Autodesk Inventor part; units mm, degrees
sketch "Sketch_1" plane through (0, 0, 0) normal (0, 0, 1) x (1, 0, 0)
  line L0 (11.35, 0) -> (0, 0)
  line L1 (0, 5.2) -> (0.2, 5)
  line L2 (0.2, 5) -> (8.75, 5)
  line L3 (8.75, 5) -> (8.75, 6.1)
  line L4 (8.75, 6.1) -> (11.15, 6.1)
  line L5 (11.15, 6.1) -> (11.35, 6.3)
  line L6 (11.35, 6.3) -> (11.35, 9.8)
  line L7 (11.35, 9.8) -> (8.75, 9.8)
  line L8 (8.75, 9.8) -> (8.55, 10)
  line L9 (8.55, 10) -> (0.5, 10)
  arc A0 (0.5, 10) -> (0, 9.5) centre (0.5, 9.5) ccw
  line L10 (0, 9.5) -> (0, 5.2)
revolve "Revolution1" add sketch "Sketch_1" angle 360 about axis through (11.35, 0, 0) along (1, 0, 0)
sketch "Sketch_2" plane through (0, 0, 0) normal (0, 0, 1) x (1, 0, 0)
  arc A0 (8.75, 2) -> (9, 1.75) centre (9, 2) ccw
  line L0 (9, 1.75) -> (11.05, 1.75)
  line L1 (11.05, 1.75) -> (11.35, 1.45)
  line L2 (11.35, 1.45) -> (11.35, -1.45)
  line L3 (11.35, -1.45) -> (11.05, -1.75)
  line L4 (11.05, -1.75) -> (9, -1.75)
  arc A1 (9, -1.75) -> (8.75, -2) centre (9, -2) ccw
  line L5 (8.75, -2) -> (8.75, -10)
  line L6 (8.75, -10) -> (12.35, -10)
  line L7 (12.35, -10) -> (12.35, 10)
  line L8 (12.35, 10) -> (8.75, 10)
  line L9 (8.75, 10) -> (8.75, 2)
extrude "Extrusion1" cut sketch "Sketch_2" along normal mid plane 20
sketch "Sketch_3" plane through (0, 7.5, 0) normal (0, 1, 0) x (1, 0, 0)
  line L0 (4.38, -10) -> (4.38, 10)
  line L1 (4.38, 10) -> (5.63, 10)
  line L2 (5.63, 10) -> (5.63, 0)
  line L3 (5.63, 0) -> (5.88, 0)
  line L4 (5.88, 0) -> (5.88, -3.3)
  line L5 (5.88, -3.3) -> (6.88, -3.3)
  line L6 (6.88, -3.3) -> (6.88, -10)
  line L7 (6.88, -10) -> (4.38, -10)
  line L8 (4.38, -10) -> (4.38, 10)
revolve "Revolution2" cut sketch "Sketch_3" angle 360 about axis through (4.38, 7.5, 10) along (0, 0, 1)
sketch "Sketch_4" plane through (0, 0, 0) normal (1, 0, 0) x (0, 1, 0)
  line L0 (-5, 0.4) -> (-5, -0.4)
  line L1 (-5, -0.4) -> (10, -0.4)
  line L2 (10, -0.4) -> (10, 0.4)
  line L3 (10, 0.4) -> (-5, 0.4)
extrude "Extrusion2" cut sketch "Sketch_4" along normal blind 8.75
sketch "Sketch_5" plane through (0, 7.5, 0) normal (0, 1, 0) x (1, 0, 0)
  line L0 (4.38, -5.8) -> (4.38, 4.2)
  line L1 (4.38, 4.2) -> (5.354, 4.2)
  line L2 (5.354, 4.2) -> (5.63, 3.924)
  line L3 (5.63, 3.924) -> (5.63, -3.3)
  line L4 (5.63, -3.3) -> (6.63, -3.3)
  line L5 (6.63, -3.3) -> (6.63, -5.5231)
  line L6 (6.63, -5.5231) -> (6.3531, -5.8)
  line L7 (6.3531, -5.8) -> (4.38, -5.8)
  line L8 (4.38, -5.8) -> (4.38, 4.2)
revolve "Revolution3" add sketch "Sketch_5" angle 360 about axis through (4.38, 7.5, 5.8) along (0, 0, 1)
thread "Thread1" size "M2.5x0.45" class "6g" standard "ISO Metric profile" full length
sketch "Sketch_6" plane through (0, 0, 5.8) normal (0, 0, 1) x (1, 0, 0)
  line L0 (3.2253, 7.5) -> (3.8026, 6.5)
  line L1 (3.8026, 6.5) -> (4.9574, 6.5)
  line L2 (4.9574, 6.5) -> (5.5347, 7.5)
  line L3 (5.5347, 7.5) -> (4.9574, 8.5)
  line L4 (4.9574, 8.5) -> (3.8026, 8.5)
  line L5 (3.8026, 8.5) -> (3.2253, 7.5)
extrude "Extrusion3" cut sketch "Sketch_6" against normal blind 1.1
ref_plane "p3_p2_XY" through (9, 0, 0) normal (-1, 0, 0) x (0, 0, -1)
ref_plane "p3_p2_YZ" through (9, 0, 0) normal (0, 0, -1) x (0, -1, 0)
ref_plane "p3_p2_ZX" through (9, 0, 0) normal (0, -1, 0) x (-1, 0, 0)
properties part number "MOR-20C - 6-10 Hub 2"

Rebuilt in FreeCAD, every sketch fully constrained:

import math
import FreeCAD as App
import Part
import Sketcher

V = App.Vector
Q = App.Units.Quantity

doc = App.newDocument("Part")
body = doc.addObject("PartDesign::Body", "Body")

# Sketch on XY plane
sketch1 = doc.addObject("Sketcher::SketchObject", "Sketch")
body.addObject(sketch1)
sketch1.AttachmentSupport = (doc.XY_Plane, [""])
sketch1.MapMode = "FlatFace"
sketch1.addGeometry([
    Part.LineSegment(V(0, 9.5, 0), V(0, 5.2, 0)),  # 0
    Part.LineSegment(V(0, 5.2, 0), V(0.2, 5, 0)),  # 1
    Part.LineSegment(V(0.2, 5, 0), V(8.75, 5, 0)),  # 2
    Part.LineSegment(V(8.75, 5, 0), V(8.75, 6.1, 0)),  # 3
    Part.LineSegment(V(8.75, 6.1, 0), V(11.15, 6.1, 0)),  # 4
    Part.LineSegment(V(11.15, 6.1, 0), V(11.35, 6.3, 0)),  # 5
    Part.LineSegment(V(11.35, 6.3, 0), V(11.35, 9.8, 0)),  # 6
    Part.LineSegment(V(11.35, 9.8, 0), V(8.75, 9.8, 0)),  # 7
    Part.LineSegment(V(8.75, 9.8, 0), V(8.55, 10, 0)),  # 8
    Part.LineSegment(V(8.55, 10, 0), V(0.5, 10, 0)),  # 9
    Part.ArcOfCircle(Part.Circle(V(0.5, 9.5, 0), V(0, 0, 1), 0.5), math.radians(90), math.radians(180)),  # 10
], False)
sketch1.addConstraint([
    Sketcher.Constraint("Coincident", 0, 2, 1, 1),
    Sketcher.Constraint("Coincident", 1, 2, 2, 1),
    Sketcher.Constraint("Coincident", 2, 2, 3, 1),
    Sketcher.Constraint("Coincident", 3, 2, 4, 1),
    Sketcher.Constraint("Coincident", 4, 2, 5, 1),
    Sketcher.Constraint("Coincident", 5, 2, 6, 1),
    Sketcher.Constraint("Coincident", 6, 2, 7, 1),
    Sketcher.Constraint("Coincident", 7, 2, 8, 1),
    Sketcher.Constraint("Coincident", 8, 2, 9, 1),
    Sketcher.Constraint("Tangent", 9, 2, 10, 1),
    Sketcher.Constraint("Tangent", 10, 2, 0, 1),
    Sketcher.Constraint("Vertical", 0),
    Sketcher.Constraint("Horizontal", 2),
    Sketcher.Constraint("Vertical", 3),
    Sketcher.Constraint("Horizontal", 4),
    Sketcher.Constraint("Vertical", 6),
    Sketcher.Constraint("Horizontal", 7),
    Sketcher.Constraint("Horizontal", 9),
    Sketcher.Constraint("PointOnObject", 0, 2, -2),
    Sketcher.Constraint("Perpendicular", 1, 5),
    Sketcher.Constraint("Perpendicular", 5, 8),
    Sketcher.Constraint("Vertical", 3, 2, 7, 2),
    Sketcher.Constraint("Equal", 1, 5),
    Sketcher.Constraint("Equal", 5, 8),
    Sketcher.Constraint("Radius", 10, 0.5),
    Sketcher.Constraint("Angle", 1, Q("-45 deg")),
    Sketcher.Constraint("DistanceX", 4, 1, 4, 2, 2.4),
    Sketcher.Constraint("DistanceX", 7, 2, 7, 1, 2.6),
    Sketcher.Constraint("DistanceY", 0, 2, 0, 1, 4.3),
    Sketcher.Constraint("DistanceY", 3, 1, 3, 2, 1.1),
    Sketcher.Constraint("DistanceY", -1, 1, 1, 2, 5.0),
    Sketcher.Constraint("DistanceX", 2, 1, 2, 2, 8.55),
])
revolution = doc.addObject("PartDesign::Revolution", "Revolution")
body.addObject(revolution)
revolution.Profile = sketch1
revolution.ReferenceAxis = (sketch1, ["H_Axis"])
revolution.Angle = 360

# Sketch on XY plane
sketch2 = doc.addObject("Sketcher::SketchObject", "Sketch001")
body.addObject(sketch2)
sketch2.AttachmentSupport = (doc.XY_Plane, [""])
sketch2.MapMode = "FlatFace"
sketch2.addGeometry([
    Part.LineSegment(V(8.75, 10, 0), V(8.75, 2, 0)),  # 0
    Part.ArcOfCircle(Part.Circle(V(9, 2, 0), V(0, 0, 1), 0.25), math.radians(180), math.radians(270)),  # 1
    Part.LineSegment(V(9, 1.75, 0), V(11.05, 1.75, 0)),  # 2
    Part.LineSegment(V(11.05, 1.75, 0), V(11.35, 1.45, 0)),  # 3
    Part.LineSegment(V(11.35, 1.45, 0), V(11.35, -1.45, 0)),  # 4
    Part.LineSegment(V(11.35, -1.45, 0), V(11.05, -1.75, 0)),  # 5
    Part.LineSegment(V(11.05, -1.75, 0), V(9, -1.75, 0)),  # 6
    Part.ArcOfCircle(Part.Circle(V(9, -2, 0), V(0, 0, 1), 0.25), math.radians(90), math.radians(180)),  # 7
    Part.LineSegment(V(8.75, -2, 0), V(8.75, -10, 0)),  # 8
    Part.LineSegment(V(8.75, -10, 0), V(12.35, -10, 0)),  # 9
    Part.LineSegment(V(12.35, -10, 0), V(12.35, 10, 0)),  # 10
    Part.LineSegment(V(12.35, 10, 0), V(8.75, 10, 0)),  # 11
], False)
sketch2.addConstraint([
    Sketcher.Constraint("Tangent", 0, 2, 1, 1),
    Sketcher.Constraint("Tangent", 1, 2, 2, 1),
    Sketcher.Constraint("Coincident", 2, 2, 3, 1),
    Sketcher.Constraint("Coincident", 3, 2, 4, 1),
    Sketcher.Constraint("Coincident", 4, 2, 5, 1),
    Sketcher.Constraint("Coincident", 5, 2, 6, 1),
    Sketcher.Constraint("Tangent", 6, 2, 7, 1),
    Sketcher.Constraint("Tangent", 7, 2, 8, 1),
    Sketcher.Constraint("Coincident", 8, 2, 9, 1),
    Sketcher.Constraint("Coincident", 9, 2, 10, 1),
    Sketcher.Constraint("Coincident", 10, 2, 11, 1),
    Sketcher.Constraint("Coincident", 11, 2, 0, 1),
    Sketcher.Constraint("Vertical", 0),
    Sketcher.Constraint("Horizontal", 2),
    Sketcher.Constraint("Vertical", 4),
    Sketcher.Constraint("Horizontal", 6),
    Sketcher.Constraint("Vertical", 8),
    Sketcher.Constraint("Horizontal", 9),
    Sketcher.Constraint("Vertical", 10),
    Sketcher.Constraint("Horizontal", 11),
    Sketcher.Constraint("Equal", 1, 7),
    Sketcher.Constraint("Symmetric", 1, 3, 7, 3, -1),
    Sketcher.Constraint("Perpendicular", 3, 5),
    Sketcher.Constraint("Vertical", 2, 2, 5, 2),
    Sketcher.Constraint("Equal", 0, 8),
    Sketcher.Constraint("Equal", 3, 5),
    Sketcher.Constraint("DistanceY", 0, 2, 0, 1, 8.0),
    Sketcher.Constraint("DistanceY", 10, 1, 10, 2, 20.0),
    Sketcher.Constraint("Radius", 1, 0.25),
    Sketcher.Constraint("DistanceX", 9, 1, 9, 2, 3.6),
    Sketcher.Constraint("DistanceY", 4, 2, 4, 1, 2.9),
    Sketcher.Constraint("DistanceX", -1, 1, 1, 3, 9.0),
    Sketcher.Constraint("DistanceX", 4, 2, 9, 2, 1.0),
])
pocket1 = doc.addObject("PartDesign::Pocket", "Pocket")
body.addObject(pocket1)
pocket1.Profile = sketch2
pocket1.Length = 20
pocket1.Midplane = True

# Sketch on XZ plane
sketch3 = doc.addObject("Sketcher::SketchObject", "Sketch002")
body.addObject(sketch3)
sketch3.AttachmentSupport = (doc.XZ_Plane, [""])
sketch3.MapMode = "FlatFace"
sketch3.AttachmentOffset = App.Placement(V(0, 0, -7.5), App.Rotation())
sketch3.addGeometry([
    Part.LineSegment(V(4.38, -10, 0), V(4.38, 10, 0)),  # 0
    Part.LineSegment(V(4.38, 10, 0), V(6.88, 10, 0)),  # 1
    Part.LineSegment(V(6.88, 10, 0), V(6.88, 3.3, 0)),  # 2
    Part.LineSegment(V(6.88, 3.3, 0), V(5.88, 3.3, 0)),  # 3
    Part.LineSegment(V(5.88, 3.3, 0), V(5.88, 0, 0)),  # 4
    Part.LineSegment(V(5.88, 0, 0), V(5.63, 0, 0)),  # 5
    Part.LineSegment(V(5.63, 0, 0), V(5.63, -10, 0)),  # 6
    Part.LineSegment(V(5.63, -10, 0), V(4.38, -10, 0)),  # 7
], False)
sketch3.addGeometry(Part.LineSegment(V(4.38, -10, 0), V(4.38, 10, 0)), True)  # axis
sketch3.addConstraint([
    Sketcher.Constraint("Coincident", 0, 2, 1, 1),
    Sketcher.Constraint("Coincident", 1, 2, 2, 1),
    Sketcher.Constraint("Coincident", 2, 2, 3, 1),
    Sketcher.Constraint("Coincident", 3, 2, 4, 1),
    Sketcher.Constraint("Coincident", 4, 2, 5, 1),
    Sketcher.Constraint("Coincident", 5, 2, 6, 1),
    Sketcher.Constraint("Coincident", 6, 2, 7, 1),
    Sketcher.Constraint("Coincident", 7, 2, 0, 1),
    Sketcher.Constraint("Vertical", 0),
    Sketcher.Constraint("Horizontal", 1),
    Sketcher.Constraint("Vertical", 2),
    Sketcher.Constraint("Horizontal", 3),
    Sketcher.Constraint("Vertical", 4),
    Sketcher.Constraint("Horizontal", 5),
    Sketcher.Constraint("Vertical", 6),
    Sketcher.Constraint("Horizontal", 7),
    Sketcher.Constraint("Vertical", 8),
    Sketcher.Constraint("Coincident", 8, 1, 7, 2),
    Sketcher.Constraint("PointOnObject", 4, 2, -1),
    Sketcher.Constraint("Horizontal", 1, 2, 8, 2),
    Sketcher.Constraint("DistanceX", 3, 2, 3, 1, 1.0),
    Sketcher.Constraint("DistanceY", 0, 1, 0, 2, 20.0),
    Sketcher.Constraint("DistanceY", 6, 2, 6, 1, 10.0),
    Sketcher.Constraint("DistanceX", 1, 1, 1, 2, 2.5),
    Sketcher.Constraint("DistanceY", 2, 2, 2, 1, 6.7),
    Sketcher.Constraint("DistanceX", 5, 2, 5, 1, 0.25),
    Sketcher.Constraint("DistanceX", -1, 1, 0, 2, 4.38),
])
groove = doc.addObject("PartDesign::Groove", "Groove")
body.addObject(groove)
groove.Profile = sketch3
groove.ReferenceAxis = (sketch3, ["Axis0"])
groove.Angle = 360

# Sketch on YZ plane
sketch4 = doc.addObject("Sketcher::SketchObject", "Sketch003")
body.addObject(sketch4)
sketch4.AttachmentSupport = (doc.YZ_Plane, [""])
sketch4.MapMode = "FlatFace"
sketch4.addGeometry([
    Part.LineSegment(V(10, 0.4, 0), V(-5, 0.4, 0)),
    Part.LineSegment(V(-5, 0.4, 0), V(-5, -0.4, 0)),
    Part.LineSegment(V(-5, -0.4, 0), V(10, -0.4, 0)),
    Part.LineSegment(V(10, -0.4, 0), V(10, 0.4, 0)),
], False)
sketch4.addConstraint([
    Sketcher.Constraint("Coincident", 0, 2, 1, 1),
    Sketcher.Constraint("Coincident", 1, 2, 2, 1),
    Sketcher.Constraint("Coincident", 2, 2, 3, 1),
    Sketcher.Constraint("Coincident", 3, 2, 0, 1),
    Sketcher.Constraint("Horizontal", 0),
    Sketcher.Constraint("Vertical", 1),
    Sketcher.Constraint("Horizontal", 2),
    Sketcher.Constraint("Vertical", 3),
    Sketcher.Constraint("DistanceX", 0, 2, 0, 1, 15.0),
    Sketcher.Constraint("DistanceY", 1, 2, 1, 1, 0.8),
    Sketcher.Constraint("DistanceX", 0, 2, -1, 1, 5.0),
    Sketcher.Constraint("DistanceY", -1, 1, 0, 2, 0.4),
])
pocket2 = doc.addObject("PartDesign::Pocket", "Pocket001")
body.addObject(pocket2)
pocket2.Profile = sketch4
pocket2.Length = 8.75
pocket2.Reversed = True

# Sketch on XZ plane
sketch5 = doc.addObject("Sketcher::SketchObject", "Sketch004")
body.addObject(sketch5)
sketch5.AttachmentSupport = (doc.XZ_Plane, [""])
sketch5.MapMode = "FlatFace"
sketch5.AttachmentOffset = App.Placement(V(0, 0, -7.5), App.Rotation())
sketch5.addGeometry([
    Part.LineSegment(V(4.38, -4.2, 0), V(4.38, 5.8, 0)),  # 0
    Part.LineSegment(V(4.38, 5.8, 0), V(6.35, 5.8, 0)),  # 1
    Part.LineSegment(V(6.35, 5.8, 0), V(6.63, 5.52, 0)),  # 2
    Part.LineSegment(V(6.63, 5.52, 0), V(6.63, 3.3, 0)),  # 3
    Part.LineSegment(V(6.63, 3.3, 0), V(5.63, 3.3, 0)),  # 4
    Part.LineSegment(V(5.63, 3.3, 0), V(5.63, -3.92, 0)),  # 5
    Part.LineSegment(V(5.63, -3.92, 0), V(5.35, -4.2, 0)),  # 6
    Part.LineSegment(V(5.35, -4.2, 0), V(4.38, -4.2, 0)),  # 7
], False)
sketch5.addGeometry(Part.LineSegment(V(4.38, -4.2, 0), V(4.38, 5.8, 0)), True)  # axis
sketch5.addConstraint([
    Sketcher.Constraint("Coincident", 0, 2, 1, 1),
    Sketcher.Constraint("Coincident", 1, 2, 2, 1),
    Sketcher.Constraint("Coincident", 2, 2, 3, 1),
    Sketcher.Constraint("Coincident", 3, 2, 4, 1),
    Sketcher.Constraint("Coincident", 4, 2, 5, 1),
    Sketcher.Constraint("Coincident", 5, 2, 6, 1),
    Sketcher.Constraint("Coincident", 6, 2, 7, 1),
    Sketcher.Constraint("Coincident", 7, 2, 0, 1),
    Sketcher.Constraint("Vertical", 0),
    Sketcher.Constraint("Horizontal", 1),
    Sketcher.Constraint("Vertical", 3),
    Sketcher.Constraint("Horizontal", 4),
    Sketcher.Constraint("Vertical", 5),
    Sketcher.Constraint("Horizontal", 7),
    Sketcher.Constraint("Vertical", 8),
    Sketcher.Constraint("Coincident", 8, 1, 7, 2),
    Sketcher.Constraint("Perpendicular", 2, 6),
    Sketcher.Constraint("Horizontal", 1, 2, 8, 2),
    Sketcher.Constraint("DistanceX", 4, 2, 4, 1, 1.0),
    Sketcher.Constraint("DistanceY", 0, 1, 0, 2, 10.0),
    Sketcher.Constraint("Angle", 2, Q("-45 deg")),
    Sketcher.Constraint("DistanceY", -1, 1, 0, 2, 5.8),
    Sketcher.Constraint("DistanceY", -1, 1, 3, 2, 3.3),
    Sketcher.Constraint("DistanceX", 1, 1, 1, 2, 1.973),
    Sketcher.Constraint("DistanceX", 7, 2, 7, 1, 0.974),
    Sketcher.Constraint("DistanceY", 3, 2, 3, 1, 2.223),
    Sketcher.Constraint("DistanceX", -1, 1, 0, 2, 4.38),
])
revolution2 = doc.addObject("PartDesign::Revolution", "Revolution001")
body.addObject(revolution2)
revolution2.Profile = sketch5
revolution2.ReferenceAxis = (sketch5, ["Axis0"])
revolution2.Angle = 360

# Sketch on XY plane
sketch6 = doc.addObject("Sketcher::SketchObject", "Sketch005")
body.addObject(sketch6)
sketch6.AttachmentSupport = (doc.XY_Plane, [""])
sketch6.MapMode = "FlatFace"
sketch6.AttachmentOffset = App.Placement(V(0, 0, 5.8), App.Rotation())
sketch6.addGeometry([
    Part.LineSegment(V(3.8, 8.5, 0), V(3.2, 7.5, 0)),  # 0
    Part.LineSegment(V(3.2, 7.5, 0), V(3.8, 6.5, 0)),  # 1
    Part.LineSegment(V(3.8, 6.5, 0), V(5, 6.5, 0)),  # 2
    Part.LineSegment(V(5, 6.5, 0), V(5.5, 7.5, 0)),  # 3
    Part.LineSegment(V(5.5, 7.5, 0), V(5, 8.5, 0)),  # 4
    Part.LineSegment(V(5, 8.5, 0), V(3.8, 8.5, 0)),  # 5
], False)
sketch6.addConstraint([
    Sketcher.Constraint("Coincident", 0, 2, 1, 1),
    Sketcher.Constraint("Coincident", 1, 2, 2, 1),
    Sketcher.Constraint("Coincident", 2, 2, 3, 1),
    Sketcher.Constraint("Coincident", 3, 2, 4, 1),
    Sketcher.Constraint("Coincident", 4, 2, 5, 1),
    Sketcher.Constraint("Coincident", 5, 2, 0, 1),
    Sketcher.Constraint("Horizontal", 2),
    Sketcher.Constraint("Horizontal", 5),
    Sketcher.Constraint("Parallel", 0, 3),
    Sketcher.Constraint("Parallel", 1, 4),
    Sketcher.Constraint("Horizontal", 0, 2, 3, 2),
    Sketcher.Constraint("Vertical", 2, 2, 4, 2),
    Sketcher.Constraint("Vertical", 1, 2, 5, 2),
    Sketcher.Constraint("DistanceY", 1, 2, 0, 2, 1.0),
    Sketcher.Constraint("DistanceY", -1, 1, 0, 2, 7.5),
    Sketcher.Constraint("DistanceX", 2, 1, 2, 2, 1.1548),
    Sketcher.Constraint("DistanceX", 0, 2, 2, 2, 1.732),
    Sketcher.Constraint("DistanceX", -1, 1, 0, 2, 3.2253),
])
pocket3 = doc.addObject("PartDesign::Pocket", "Pocket002")
body.addObject(pocket3)
pocket3.Profile = sketch6
pocket3.Length = 1.1

doc.recompute()
